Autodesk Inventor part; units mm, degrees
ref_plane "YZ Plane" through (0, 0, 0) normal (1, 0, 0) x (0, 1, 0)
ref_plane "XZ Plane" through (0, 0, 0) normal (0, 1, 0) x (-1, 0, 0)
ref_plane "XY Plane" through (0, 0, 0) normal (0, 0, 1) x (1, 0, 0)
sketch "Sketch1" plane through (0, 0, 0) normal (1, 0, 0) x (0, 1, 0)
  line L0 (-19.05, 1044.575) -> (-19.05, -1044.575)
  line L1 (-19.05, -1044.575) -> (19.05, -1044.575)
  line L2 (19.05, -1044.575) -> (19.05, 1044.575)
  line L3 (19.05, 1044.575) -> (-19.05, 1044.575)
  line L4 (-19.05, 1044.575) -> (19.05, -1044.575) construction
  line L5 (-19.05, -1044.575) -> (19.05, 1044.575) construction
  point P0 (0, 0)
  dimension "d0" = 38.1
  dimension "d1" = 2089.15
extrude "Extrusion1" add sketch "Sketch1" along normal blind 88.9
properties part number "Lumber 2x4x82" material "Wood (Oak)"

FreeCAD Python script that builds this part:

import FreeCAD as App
import Part
import Sketcher
Q = App.Units.Quantity

doc = App.newDocument("Part")
body = doc.addObject("PartDesign::Body", "Body")

# Sketch on YZ plane
sketch1 = body.newObject("Sketcher::SketchObject", "Sketch")
sketch1.AttachmentSupport = (doc.getObject("YZ_Plane"), [""])
sketch1.MapMode = "FlatFace"
sketch1.addGeometry([
    Part.LineSegment(App.Vector(19.05, 1044.575, 0), App.Vector(-19.05, 1044.575, 0)),
    Part.LineSegment(App.Vector(-19.05, 1044.575, 0), App.Vector(-19.05, -1044.575, 0)),
    Part.LineSegment(App.Vector(-19.05, -1044.575, 0), App.Vector(19.05, -1044.575, 0)),
    Part.LineSegment(App.Vector(19.05, -1044.575, 0), App.Vector(19.05, 1044.575, 0)),
], False)
sketch1.addConstraint([
    Sketcher.Constraint("Coincident", 0, 2, 1, 1),
    Sketcher.Constraint("Coincident", 1, 2, 2, 1),
    Sketcher.Constraint("Coincident", 2, 2, 3, 1),
    Sketcher.Constraint("Coincident", 3, 2, 0, 1),
    Sketcher.Constraint("Horizontal", 0),
    Sketcher.Constraint("Vertical", 1),
    Sketcher.Constraint("Horizontal", 2),
    Sketcher.Constraint("Vertical", 3),
    Sketcher.Constraint("Symmetric", 0, 2, 2, 2, -1, 1),
    Sketcher.Constraint("DistanceX", 0, 2, 0, 1, Q("1.5 in")),
    Sketcher.Constraint("DistanceY", 1, 2, 1, 1, Q("82.25 in")),
])
pad1 = body.newObject("PartDesign::Pad", "Pad")
pad1.Profile = sketch1
pad1.Length = Q("3.5 in")

doc.recompute()
